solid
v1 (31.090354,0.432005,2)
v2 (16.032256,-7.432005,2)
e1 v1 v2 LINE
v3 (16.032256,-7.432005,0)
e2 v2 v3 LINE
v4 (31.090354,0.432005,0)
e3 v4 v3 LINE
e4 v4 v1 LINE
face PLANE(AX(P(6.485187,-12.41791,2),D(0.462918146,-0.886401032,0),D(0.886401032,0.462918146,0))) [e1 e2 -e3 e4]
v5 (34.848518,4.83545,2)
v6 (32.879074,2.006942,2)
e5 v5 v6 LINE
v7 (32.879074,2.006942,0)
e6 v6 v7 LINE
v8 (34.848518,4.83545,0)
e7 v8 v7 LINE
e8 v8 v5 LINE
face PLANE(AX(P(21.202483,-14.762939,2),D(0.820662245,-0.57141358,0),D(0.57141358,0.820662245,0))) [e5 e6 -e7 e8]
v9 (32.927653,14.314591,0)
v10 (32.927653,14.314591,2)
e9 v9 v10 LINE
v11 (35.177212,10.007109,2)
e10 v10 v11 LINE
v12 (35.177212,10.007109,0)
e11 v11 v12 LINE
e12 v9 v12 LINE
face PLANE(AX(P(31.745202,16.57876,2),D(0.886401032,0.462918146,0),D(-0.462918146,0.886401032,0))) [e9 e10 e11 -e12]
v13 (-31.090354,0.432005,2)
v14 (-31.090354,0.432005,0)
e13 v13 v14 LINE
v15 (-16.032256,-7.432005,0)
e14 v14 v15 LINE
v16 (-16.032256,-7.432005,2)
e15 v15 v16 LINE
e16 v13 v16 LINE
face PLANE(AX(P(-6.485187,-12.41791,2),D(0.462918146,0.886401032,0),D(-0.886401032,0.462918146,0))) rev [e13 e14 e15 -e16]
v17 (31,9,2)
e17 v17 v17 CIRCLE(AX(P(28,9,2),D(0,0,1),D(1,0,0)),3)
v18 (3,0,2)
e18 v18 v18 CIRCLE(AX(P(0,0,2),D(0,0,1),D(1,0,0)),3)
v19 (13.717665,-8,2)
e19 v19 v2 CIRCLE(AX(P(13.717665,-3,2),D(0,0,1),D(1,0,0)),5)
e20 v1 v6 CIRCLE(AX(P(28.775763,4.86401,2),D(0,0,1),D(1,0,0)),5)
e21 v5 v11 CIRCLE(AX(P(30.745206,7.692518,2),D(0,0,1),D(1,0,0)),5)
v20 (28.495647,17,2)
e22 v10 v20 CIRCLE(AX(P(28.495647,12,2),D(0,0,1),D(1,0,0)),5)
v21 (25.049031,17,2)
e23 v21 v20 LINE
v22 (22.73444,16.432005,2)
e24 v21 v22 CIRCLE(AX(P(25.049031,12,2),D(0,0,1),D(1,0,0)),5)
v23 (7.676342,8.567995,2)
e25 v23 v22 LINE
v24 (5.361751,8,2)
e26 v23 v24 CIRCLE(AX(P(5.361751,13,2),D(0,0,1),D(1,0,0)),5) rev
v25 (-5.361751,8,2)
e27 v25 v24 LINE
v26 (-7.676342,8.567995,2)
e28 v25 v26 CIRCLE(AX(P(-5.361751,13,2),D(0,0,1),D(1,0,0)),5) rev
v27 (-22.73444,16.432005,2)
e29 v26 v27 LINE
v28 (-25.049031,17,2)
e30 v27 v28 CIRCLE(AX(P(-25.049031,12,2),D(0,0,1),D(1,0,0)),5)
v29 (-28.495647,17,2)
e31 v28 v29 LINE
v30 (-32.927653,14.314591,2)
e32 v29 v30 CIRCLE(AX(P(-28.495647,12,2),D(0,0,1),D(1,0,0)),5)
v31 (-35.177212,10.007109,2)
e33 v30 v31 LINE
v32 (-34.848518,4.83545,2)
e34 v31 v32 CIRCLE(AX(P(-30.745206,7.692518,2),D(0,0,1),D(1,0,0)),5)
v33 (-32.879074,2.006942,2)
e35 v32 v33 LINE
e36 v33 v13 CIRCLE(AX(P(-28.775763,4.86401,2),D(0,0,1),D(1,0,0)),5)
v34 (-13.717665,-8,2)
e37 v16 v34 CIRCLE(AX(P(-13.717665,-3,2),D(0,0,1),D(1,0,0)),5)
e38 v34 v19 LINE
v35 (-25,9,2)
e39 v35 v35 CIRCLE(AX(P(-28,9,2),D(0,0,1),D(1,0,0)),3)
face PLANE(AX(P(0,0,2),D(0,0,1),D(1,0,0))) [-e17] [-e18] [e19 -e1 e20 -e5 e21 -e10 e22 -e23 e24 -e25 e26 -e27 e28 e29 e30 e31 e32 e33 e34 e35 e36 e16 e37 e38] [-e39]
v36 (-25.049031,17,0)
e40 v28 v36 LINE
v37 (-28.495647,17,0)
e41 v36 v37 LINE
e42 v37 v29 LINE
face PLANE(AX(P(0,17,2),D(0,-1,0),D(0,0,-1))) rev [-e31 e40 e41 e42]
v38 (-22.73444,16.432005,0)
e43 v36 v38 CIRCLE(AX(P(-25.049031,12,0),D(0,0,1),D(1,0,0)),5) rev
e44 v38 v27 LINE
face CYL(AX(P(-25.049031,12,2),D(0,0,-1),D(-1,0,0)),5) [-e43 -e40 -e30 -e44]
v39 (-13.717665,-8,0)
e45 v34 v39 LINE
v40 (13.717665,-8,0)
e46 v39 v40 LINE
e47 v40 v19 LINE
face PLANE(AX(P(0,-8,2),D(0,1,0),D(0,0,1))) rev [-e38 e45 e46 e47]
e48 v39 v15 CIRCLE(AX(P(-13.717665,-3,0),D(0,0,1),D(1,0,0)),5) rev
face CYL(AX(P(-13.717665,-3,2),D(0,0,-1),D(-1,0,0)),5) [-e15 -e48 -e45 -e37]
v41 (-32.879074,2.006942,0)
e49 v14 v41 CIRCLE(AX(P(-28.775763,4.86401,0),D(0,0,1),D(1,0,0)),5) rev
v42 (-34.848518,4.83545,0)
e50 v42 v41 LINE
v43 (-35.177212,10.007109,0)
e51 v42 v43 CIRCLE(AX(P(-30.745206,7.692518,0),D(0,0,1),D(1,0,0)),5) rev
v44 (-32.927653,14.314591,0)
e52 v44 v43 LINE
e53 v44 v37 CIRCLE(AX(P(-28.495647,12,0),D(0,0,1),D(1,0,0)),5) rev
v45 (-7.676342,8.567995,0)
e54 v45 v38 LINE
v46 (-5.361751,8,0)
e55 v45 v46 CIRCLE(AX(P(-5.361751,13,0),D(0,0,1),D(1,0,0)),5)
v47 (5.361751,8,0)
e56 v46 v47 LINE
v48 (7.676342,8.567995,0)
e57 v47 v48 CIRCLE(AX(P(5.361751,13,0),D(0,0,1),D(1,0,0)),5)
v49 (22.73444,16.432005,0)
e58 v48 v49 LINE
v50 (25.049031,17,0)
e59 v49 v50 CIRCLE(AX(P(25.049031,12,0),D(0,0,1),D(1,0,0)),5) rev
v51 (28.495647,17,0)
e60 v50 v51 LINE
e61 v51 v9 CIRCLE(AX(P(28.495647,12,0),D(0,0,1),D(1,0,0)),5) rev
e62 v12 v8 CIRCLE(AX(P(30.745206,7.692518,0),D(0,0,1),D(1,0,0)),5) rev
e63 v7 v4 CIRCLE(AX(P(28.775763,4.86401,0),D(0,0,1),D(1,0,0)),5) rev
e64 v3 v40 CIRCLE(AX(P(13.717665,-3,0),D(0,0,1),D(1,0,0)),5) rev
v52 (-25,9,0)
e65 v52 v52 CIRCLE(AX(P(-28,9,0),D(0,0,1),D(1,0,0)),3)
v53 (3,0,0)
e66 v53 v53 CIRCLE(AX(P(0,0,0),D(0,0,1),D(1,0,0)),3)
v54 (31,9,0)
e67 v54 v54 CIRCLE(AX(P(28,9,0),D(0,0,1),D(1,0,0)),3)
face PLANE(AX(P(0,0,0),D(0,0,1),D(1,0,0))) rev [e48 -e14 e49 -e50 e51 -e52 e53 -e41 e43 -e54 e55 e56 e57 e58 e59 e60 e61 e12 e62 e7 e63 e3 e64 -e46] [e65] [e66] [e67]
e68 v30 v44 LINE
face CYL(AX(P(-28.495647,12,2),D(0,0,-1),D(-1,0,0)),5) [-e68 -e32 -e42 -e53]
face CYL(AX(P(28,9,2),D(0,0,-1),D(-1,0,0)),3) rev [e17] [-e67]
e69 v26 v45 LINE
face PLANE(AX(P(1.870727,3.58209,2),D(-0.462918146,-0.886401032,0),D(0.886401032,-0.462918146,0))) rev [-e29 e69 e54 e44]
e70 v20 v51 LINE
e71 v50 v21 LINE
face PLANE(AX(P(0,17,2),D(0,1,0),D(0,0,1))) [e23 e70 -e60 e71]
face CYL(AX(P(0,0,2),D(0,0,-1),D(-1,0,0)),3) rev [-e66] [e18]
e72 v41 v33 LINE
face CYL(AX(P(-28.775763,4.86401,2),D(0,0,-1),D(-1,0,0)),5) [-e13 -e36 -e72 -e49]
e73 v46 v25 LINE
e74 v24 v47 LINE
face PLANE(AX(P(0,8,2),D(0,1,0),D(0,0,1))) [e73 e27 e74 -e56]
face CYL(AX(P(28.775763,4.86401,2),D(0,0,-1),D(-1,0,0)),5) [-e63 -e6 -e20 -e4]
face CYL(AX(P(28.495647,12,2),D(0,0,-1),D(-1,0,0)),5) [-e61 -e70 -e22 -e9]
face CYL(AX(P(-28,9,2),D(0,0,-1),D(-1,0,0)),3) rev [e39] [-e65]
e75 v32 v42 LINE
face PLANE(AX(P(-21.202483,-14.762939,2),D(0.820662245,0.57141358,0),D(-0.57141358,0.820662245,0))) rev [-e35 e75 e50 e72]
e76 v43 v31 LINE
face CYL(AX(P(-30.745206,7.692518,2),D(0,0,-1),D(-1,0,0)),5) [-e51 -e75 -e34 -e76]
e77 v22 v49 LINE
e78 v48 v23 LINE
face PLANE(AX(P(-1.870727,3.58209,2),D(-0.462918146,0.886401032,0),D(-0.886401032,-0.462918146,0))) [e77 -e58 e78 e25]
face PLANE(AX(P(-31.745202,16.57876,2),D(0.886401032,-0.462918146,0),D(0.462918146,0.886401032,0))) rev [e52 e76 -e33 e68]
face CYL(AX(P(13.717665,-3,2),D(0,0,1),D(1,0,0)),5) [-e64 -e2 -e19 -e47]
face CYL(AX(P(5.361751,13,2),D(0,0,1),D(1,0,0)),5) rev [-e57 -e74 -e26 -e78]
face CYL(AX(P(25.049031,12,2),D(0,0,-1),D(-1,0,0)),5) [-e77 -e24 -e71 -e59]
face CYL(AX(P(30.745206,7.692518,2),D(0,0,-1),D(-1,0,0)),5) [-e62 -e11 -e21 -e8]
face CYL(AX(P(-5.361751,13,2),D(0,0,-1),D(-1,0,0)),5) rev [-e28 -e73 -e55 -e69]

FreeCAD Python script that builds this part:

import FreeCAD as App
import Part
import Sketcher

V = App.Vector
Q = App.Units.Quantity


def edges_at(feature, points):
    """Names of the edges that pass closest to the given points."""
    edges = feature.Shape.Edges
    near = lambda p: min(range(len(edges)), key=lambda i: edges[i].distToShape(Part.Vertex(*p))[0])
    return sorted({f"Edge{near(p) + 1}" for p in points})

doc = App.newDocument("Part")
body = doc.addObject("PartDesign::Body", "Body")

# Sketch on XY plane
sketch1 = body.newObject("Sketcher::SketchObject", "Sketch")
sketch1.AttachmentSupport = (doc.getObject("XY_Plane"), [""])
sketch1.MapMode = "FlatFace"
sketch1.addGeometry([
    Part.LineSegment(V(6.6, 8, 0), V(-6.6, 8, 0)),  # 0
    Part.LineSegment(V(-6.6, 8, 0), V(-23.8, 17, 0)),  # 1
    Part.LineSegment(V(-23.8, 17, 0), V(-31.5, 17, 0)),  # 2
    Part.LineSegment(V(-31.5, 17, 0), V(-36.6, 7.3, 0)),  # 3
    Part.LineSegment(V(-36.6, 7.3, 0), V(-32.2, 1, 0)),  # 4
    Part.LineSegment(V(-32.2, 1, 0), V(-14.9, -8, 0)),  # 5
    Part.LineSegment(V(-14.9, -8, 0), V(14.9, -8, 0)),  # 6
    Part.LineSegment(V(14.9, -8, 0), V(32.2, 1, 0)),  # 7
    Part.LineSegment(V(32.2, 1, 0), V(36.6, 7.3, 0)),  # 8
    Part.LineSegment(V(36.6, 7.3, 0), V(31.5, 17, 0)),  # 9
    Part.LineSegment(V(31.5, 17, 0), V(23.8, 17, 0)),  # 10
    Part.LineSegment(V(23.8, 17, 0), V(6.6, 8, 0)),  # 11
    Part.Circle(V(0, 0, 0), V(0, 0, 1), 3),  # 12
    Part.Circle(V(28, 9, 0), V(0, 0, 1), 3),  # 13
    Part.Circle(V(-28, 9, 0), V(0, 0, 1), 3),  # 14
], False)
sketch1.addConstraint([
    Sketcher.Constraint("Coincident", 0, 2, 1, 1),
    Sketcher.Constraint("Coincident", 1, 2, 2, 1),
    Sketcher.Constraint("Coincident", 2, 2, 3, 1),
    Sketcher.Constraint("Coincident", 3, 2, 4, 1),
    Sketcher.Constraint("Coincident", 4, 2, 5, 1),
    Sketcher.Constraint("Coincident", 5, 2, 6, 1),
    Sketcher.Constraint("Coincident", 6, 2, 7, 1),
    Sketcher.Constraint("Coincident", 7, 2, 8, 1),
    Sketcher.Constraint("Coincident", 8, 2, 9, 1),
    Sketcher.Constraint("Coincident", 9, 2, 10, 1),
    Sketcher.Constraint("Coincident", 10, 2, 11, 1),
    Sketcher.Constraint("Coincident", 11, 2, 0, 1),
    Sketcher.Constraint("Horizontal", 0),
    Sketcher.Constraint("Horizontal", 2),
    Sketcher.Constraint("Horizontal", 6),
    Sketcher.Constraint("Horizontal", 10),
    Sketcher.Constraint("Coincident", 12, 3, -1, 1),
    Sketcher.Constraint("Equal", 12, 13),
    Sketcher.Constraint("Equal", 13, 14),
    Sketcher.Constraint("Symmetric", 13, 3, 14, 3, -2),
    Sketcher.Constraint("Symmetric", 4, 2, 7, 2, -2),
    Sketcher.Constraint("Symmetric", 3, 2, 8, 2, -2),
    Sketcher.Constraint("Symmetric", 2, 2, 9, 2, -2),
    Sketcher.Constraint("Perpendicular", 1, 3),
    Sketcher.Constraint("Perpendicular", 3, 5),
    Sketcher.Constraint("Perpendicular", 7, 9),
    Sketcher.Constraint("Perpendicular", 9, 11),
    Sketcher.Constraint("Equal", 2, 10),
    Sketcher.Constraint("Equal", 1, 5),
    Sketcher.Constraint("Diameter", 12, Q("6 mm")),
    Sketcher.Constraint("DistanceX", -1, 1, 13, 3, Q("28 mm")),
    Sketcher.Constraint("DistanceY", -1, 1, 13, 3, Q("9 mm")),
    Sketcher.Constraint("DistanceY", -1, 1, 0, 2, Q("8 mm")),
    Sketcher.Constraint("DistanceY", -1, 1, 1, 2, Q("17 mm")),
    Sketcher.Constraint("DistanceY", -1, 1, 4, 2, Q("1 mm")),
    Sketcher.Constraint("DistanceX", 3, 2, 5, 2, Q("21.635 mm")),
    Sketcher.Constraint("DistanceX", 2, 2, 2, 1, Q("7.703169 mm")),
    Sketcher.Constraint("DistanceY", -1, 1, 3, 2, Q("7.3217 mm")),
    Sketcher.Constraint("Distance", 4, Q("7.703169 mm")),
    Sketcher.Constraint("DistanceX", 0, 2, 0, 1, Q("13.177478 mm")),
])
pad1 = body.newObject("PartDesign::Pad", "Pad")
pad1.Profile = sketch1
pad1.Length = 2
doc.recompute()

fillet = body.newObject("PartDesign::Fillet", "Fillet")
fillet.Base = (pad1, edges_at(pad1, [
    (6.589, 8, 1),
    (23.822, 17, 1),
    (31.525, 17, 1),
    (36.58, 7.322, 1),
    (32.178, 1, 1),
    (14.945, -8, 1),
    (-14.945, -8, 1),
    (-32.178, 1, 1),
    (-36.58, 7.322, 1),
    (-31.525, 17, 1),
    (-23.822, 17, 1),
    (-6.589, 8, 1),
]))
fillet.Radius = 5

doc.recompute()
